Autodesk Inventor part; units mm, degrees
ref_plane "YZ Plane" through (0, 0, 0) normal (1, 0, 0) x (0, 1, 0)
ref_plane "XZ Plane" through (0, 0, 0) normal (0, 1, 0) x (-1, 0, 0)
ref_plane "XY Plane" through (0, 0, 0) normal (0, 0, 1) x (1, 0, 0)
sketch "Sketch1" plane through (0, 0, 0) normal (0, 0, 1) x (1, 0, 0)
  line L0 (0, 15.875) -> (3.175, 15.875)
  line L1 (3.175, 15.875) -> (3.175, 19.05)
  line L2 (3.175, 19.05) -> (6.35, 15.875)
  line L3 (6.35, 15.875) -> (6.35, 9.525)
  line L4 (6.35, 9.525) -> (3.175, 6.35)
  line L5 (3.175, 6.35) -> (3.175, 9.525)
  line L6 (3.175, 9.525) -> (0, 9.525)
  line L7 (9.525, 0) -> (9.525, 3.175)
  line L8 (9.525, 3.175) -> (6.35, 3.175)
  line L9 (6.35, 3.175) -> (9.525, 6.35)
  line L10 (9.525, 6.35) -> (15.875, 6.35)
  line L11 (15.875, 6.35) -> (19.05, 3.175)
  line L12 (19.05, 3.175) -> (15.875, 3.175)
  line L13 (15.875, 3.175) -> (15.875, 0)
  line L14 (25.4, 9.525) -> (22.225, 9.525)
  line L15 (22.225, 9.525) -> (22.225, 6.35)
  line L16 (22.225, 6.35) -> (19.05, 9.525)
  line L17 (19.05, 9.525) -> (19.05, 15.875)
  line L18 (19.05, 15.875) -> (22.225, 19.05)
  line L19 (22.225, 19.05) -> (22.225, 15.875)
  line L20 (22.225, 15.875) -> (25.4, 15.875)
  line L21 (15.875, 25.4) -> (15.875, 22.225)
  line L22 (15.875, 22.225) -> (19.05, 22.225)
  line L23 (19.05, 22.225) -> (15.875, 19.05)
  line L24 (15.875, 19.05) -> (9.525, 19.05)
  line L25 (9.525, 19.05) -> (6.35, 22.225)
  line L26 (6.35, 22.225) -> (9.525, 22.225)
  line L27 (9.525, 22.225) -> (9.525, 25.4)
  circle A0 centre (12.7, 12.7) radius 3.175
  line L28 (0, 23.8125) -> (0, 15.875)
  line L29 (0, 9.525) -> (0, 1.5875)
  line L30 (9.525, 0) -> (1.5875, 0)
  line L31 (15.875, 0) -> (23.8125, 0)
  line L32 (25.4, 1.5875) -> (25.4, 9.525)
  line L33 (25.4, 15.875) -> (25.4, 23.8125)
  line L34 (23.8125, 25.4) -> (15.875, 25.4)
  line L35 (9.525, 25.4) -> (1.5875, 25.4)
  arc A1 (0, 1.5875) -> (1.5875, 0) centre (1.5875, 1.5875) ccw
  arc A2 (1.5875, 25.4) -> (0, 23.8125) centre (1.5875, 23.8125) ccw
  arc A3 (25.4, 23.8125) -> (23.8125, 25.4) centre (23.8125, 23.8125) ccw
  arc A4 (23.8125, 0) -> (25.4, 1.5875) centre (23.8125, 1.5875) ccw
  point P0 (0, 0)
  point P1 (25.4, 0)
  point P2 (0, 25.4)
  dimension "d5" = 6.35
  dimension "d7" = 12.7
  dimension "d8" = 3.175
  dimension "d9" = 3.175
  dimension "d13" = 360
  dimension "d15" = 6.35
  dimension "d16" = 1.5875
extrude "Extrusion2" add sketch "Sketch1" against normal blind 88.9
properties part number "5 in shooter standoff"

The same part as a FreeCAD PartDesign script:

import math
import FreeCAD as App
import Part
import Sketcher
from FreeCAD import Vector
Q = App.Units.Quantity

doc = App.newDocument("Part")
body = doc.addObject("PartDesign::Body", "Body")

sketch1 = body.newObject("Sketcher::SketchObject", "Sketch")
sketch1.AttachmentSupport = (doc.getObject("XY_Plane"), [""])
sketch1.MapMode = "FlatFace"
sketch1.addGeometry([
    Part.LineSegment(Vector(0, 23.8, 0), Vector(0, 15.9, 0)),
    Part.LineSegment(Vector(0, 15.9, 0), Vector(3.2, 15.9, 0)),
    Part.LineSegment(Vector(3.2, 15.9, 0), Vector(3.2, 19.1, 0)),
    Part.LineSegment(Vector(3.2, 19.1, 0), Vector(6.3, 15.9, 0)),
    Part.LineSegment(Vector(6.3, 15.9, 0), Vector(6.3, 9.5, 0)),
    Part.LineSegment(Vector(6.3, 9.5, 0), Vector(3.2, 6.3, 0)),
    Part.LineSegment(Vector(3.2, 6.3, 0), Vector(3.2, 9.5, 0)),
    Part.LineSegment(Vector(3.2, 9.5, 0), Vector(0, 9.5, 0)),
    Part.LineSegment(Vector(0, 9.5, 0), Vector(0, 1.6, 0)),
    Part.ArcOfCircle(Part.Circle(Vector(1.6, 1.6, 0), Vector(0, 0, 1), 1.6), math.radians(180), math.radians(270)),
    Part.LineSegment(Vector(1.6, 0, 0), Vector(9.5, 0, 0)),
    Part.LineSegment(Vector(9.5, 0, 0), Vector(9.5, 3.2, 0)),
    Part.LineSegment(Vector(9.5, 3.2, 0), Vector(6.3, 3.2, 0)),
    Part.LineSegment(Vector(6.3, 3.2, 0), Vector(9.5, 6.3, 0)),
    Part.LineSegment(Vector(9.5, 6.3, 0), Vector(15.9, 6.3, 0)),
    Part.LineSegment(Vector(15.9, 6.3, 0), Vector(19.1, 3.2, 0)),
    Part.LineSegment(Vector(19.1, 3.2, 0), Vector(15.9, 3.2, 0)),
    Part.LineSegment(Vector(15.9, 3.2, 0), Vector(15.9, 0, 0)),
    Part.LineSegment(Vector(15.9, 0, 0), Vector(23.8, 0, 0)),
    Part.ArcOfCircle(Part.Circle(Vector(23.8, 1.6, 0), Vector(0, 0, 1), 1.6), math.radians(-90), math.radians(0)),
    Part.LineSegment(Vector(25.4, 1.6, 0), Vector(25.4, 9.5, 0)),
    Part.LineSegment(Vector(25.4, 9.5, 0), Vector(22.2, 9.5, 0)),
    Part.LineSegment(Vector(22.2, 9.5, 0), Vector(22.2, 6.3, 0)),
    Part.LineSegment(Vector(22.2, 6.3, 0), Vector(19.1, 9.5, 0)),
    Part.LineSegment(Vector(19.1, 9.5, 0), Vector(19.1, 15.9, 0)),
    Part.LineSegment(Vector(19.1, 15.9, 0), Vector(22.2, 19.1, 0)),
    Part.LineSegment(Vector(22.2, 19.1, 0), Vector(22.2, 15.9, 0)),
    Part.LineSegment(Vector(22.2, 15.9, 0), Vector(25.4, 15.9, 0)),
    Part.LineSegment(Vector(25.4, 15.9, 0), Vector(25.4, 23.8, 0)),
    Part.ArcOfCircle(Part.Circle(Vector(23.8, 23.8, 0), Vector(0, 0, 1), 1.6), math.radians(0), math.radians(90)),
    Part.LineSegment(Vector(23.8, 25.4, 0), Vector(15.9, 25.4, 0)),
    Part.LineSegment(Vector(15.9, 25.4, 0), Vector(15.9, 22.2, 0)),
    Part.LineSegment(Vector(15.9, 22.2, 0), Vector(19.1, 22.2, 0)),
    Part.LineSegment(Vector(19.1, 22.2, 0), Vector(15.9, 19.1, 0)),
    Part.LineSegment(Vector(15.9, 19.1, 0), Vector(9.5, 19.1, 0)),
    Part.LineSegment(Vector(9.5, 19.1, 0), Vector(6.3, 22.2, 0)),
    Part.LineSegment(Vector(6.3, 22.2, 0), Vector(9.5, 22.2, 0)),
    Part.LineSegment(Vector(9.5, 22.2, 0), Vector(9.5, 25.4, 0)),
    Part.LineSegment(Vector(9.5, 25.4, 0), Vector(1.6, 25.4, 0)),
    Part.ArcOfCircle(Part.Circle(Vector(1.6, 23.8, 0), Vector(0, 0, 1), 1.6), math.radians(90), math.radians(180)),
    Part.Circle(Vector(12.7, 12.7, 0), Vector(0, 0, 1), 3.2),
], False)
sketch1.addConstraint([
    Sketcher.Constraint("Coincident", 0, 2, 1, 1),
    Sketcher.Constraint("Coincident", 1, 2, 2, 1),
    Sketcher.Constraint("Coincident", 2, 2, 3, 1),
    Sketcher.Constraint("Coincident", 3, 2, 4, 1),
    Sketcher.Constraint("Coincident", 4, 2, 5, 1),
    Sketcher.Constraint("Coincident", 5, 2, 6, 1),
    Sketcher.Constraint("Coincident", 6, 2, 7, 1),
    Sketcher.Constraint("Coincident", 7, 2, 8, 1),
    Sketcher.Constraint("Tangent", 8, 2, 9, 1),
    Sketcher.Constraint("Tangent", 9, 2, 10, 1),
    Sketcher.Constraint("Coincident", 10, 2, 11, 1),
    Sketcher.Constraint("Coincident", 11, 2, 12, 1),
    Sketcher.Constraint("Coincident", 12, 2, 13, 1),
    Sketcher.Constraint("Coincident", 13, 2, 14, 1),
    Sketcher.Constraint("Coincident", 14, 2, 15, 1),
    Sketcher.Constraint("Coincident", 15, 2, 16, 1),
    Sketcher.Constraint("Coincident", 16, 2, 17, 1),
    Sketcher.Constraint("Coincident", 17, 2, 18, 1),
    Sketcher.Constraint("Tangent", 18, 2, 19, 1),
    Sketcher.Constraint("Tangent", 19, 2, 20, 1),
    Sketcher.Constraint("Coincident", 20, 2, 21, 1),
    Sketcher.Constraint("Coincident", 21, 2, 22, 1),
    Sketcher.Constraint("Coincident", 22, 2, 23, 1),
    Sketcher.Constraint("Coincident", 23, 2, 24, 1),
    Sketcher.Constraint("Coincident", 24, 2, 25, 1),
    Sketcher.Constraint("Coincident", 25, 2, 26, 1),
    Sketcher.Constraint("Coincident", 26, 2, 27, 1),
    Sketcher.Constraint("Coincident", 27, 2, 28, 1),
    Sketcher.Constraint("Tangent", 28, 2, 29, 1),
    Sketcher.Constraint("Tangent", 29, 2, 30, 1),
    Sketcher.Constraint("Coincident", 30, 2, 31, 1),
    Sketcher.Constraint("Coincident", 31, 2, 32, 1),
    Sketcher.Constraint("Coincident", 32, 2, 33, 1),
    Sketcher.Constraint("Coincident", 33, 2, 34, 1),
    Sketcher.Constraint("Coincident", 34, 2, 35, 1),
    Sketcher.Constraint("Coincident", 35, 2, 36, 1),
    Sketcher.Constraint("Coincident", 36, 2, 37, 1),
    Sketcher.Constraint("Coincident", 37, 2, 38, 1),
    Sketcher.Constraint("Tangent", 38, 2, 39, 1),
    Sketcher.Constraint("Tangent", 39, 2, 0, 1),
    Sketcher.Constraint("Vertical", 0),
    Sketcher.Constraint("Horizontal", 1),
    Sketcher.Constraint("Vertical", 2),
    Sketcher.Constraint("Vertical", 4),
    Sketcher.Constraint("Vertical", 6),
    Sketcher.Constraint("Horizontal", 7),
    Sketcher.Constraint("Vertical", 8),
    Sketcher.Constraint("Horizontal", 10),
    Sketcher.Constraint("Vertical", 11),
    Sketcher.Constraint("Horizontal", 12),
    Sketcher.Constraint("Horizontal", 14),
    Sketcher.Constraint("Horizontal", 16),
    Sketcher.Constraint("Vertical", 17),
    Sketcher.Constraint("Horizontal", 18),
    Sketcher.Constraint("Vertical", 20),
    Sketcher.Constraint("Horizontal", 21),
    Sketcher.Constraint("Vertical", 22),
    Sketcher.Constraint("Vertical", 24),
    Sketcher.Constraint("Vertical", 26),
    Sketcher.Constraint("Horizontal", 27),
    Sketcher.Constraint("Vertical", 28),
    Sketcher.Constraint("Horizontal", 30),
    Sketcher.Constraint("Vertical", 31),
    Sketcher.Constraint("Horizontal", 32),
    Sketcher.Constraint("Horizontal", 34),
    Sketcher.Constraint("Horizontal", 36),
    Sketcher.Constraint("Vertical", 37),
    Sketcher.Constraint("Horizontal", 38),
    Sketcher.Constraint("Equal", 9, 19),
    Sketcher.Constraint("Equal", 19, 29),
    Sketcher.Constraint("Equal", 29, 39),
    Sketcher.Constraint("PointOnObject", 0, 2, -2),
    Sketcher.Constraint("PointOnObject", 7, 2, -2),
    Sketcher.Constraint("PointOnObject", 9, 2, -1),
    Sketcher.Constraint("PointOnObject", 17, 2, -1),
    Sketcher.Constraint("Perpendicular", 3, 5),
    Sketcher.Constraint("Parallel", 5, 13),
    Sketcher.Constraint("Perpendicular", 13, 15),
    Sketcher.Constraint("Parallel", 15, 23),
    Sketcher.Constraint("Perpendicular", 23, 25),
    Sketcher.Constraint("Parallel", 25, 33),
    Sketcher.Constraint("Perpendicular", 33, 35),
    Sketcher.Constraint("Horizontal", 29, 3, 39, 3),
    Sketcher.Constraint("Horizontal", 1, 2, 3, 2),
    Sketcher.Constraint("Horizontal", 4, 2, 6, 2),
    Sketcher.Constraint("Horizontal", 5, 2, 13, 2),
    Sketcher.Constraint("Horizontal", 12, 2, 15, 2),
    Sketcher.Constraint("Horizontal", 7, 2, 20, 2),
    Sketcher.Constraint("Horizontal", 14, 2, 22, 2),
    Sketcher.Constraint("Horizontal", 21, 2, 23, 2),
    Sketcher.Constraint("Horizontal", 3, 2, 24, 2),
    Sketcher.Constraint("Horizontal", 2, 2, 25, 2),
    Sketcher.Constraint("Horizontal", 24, 2, 26, 2),
    Sketcher.Constraint("Horizontal", 25, 2, 33, 2),
    Sketcher.Constraint("Horizontal", 32, 2, 35, 2),
    Sketcher.Constraint("Vertical", 19, 3, 29, 3),
    Sketcher.Constraint("Vertical", 2, 2, 5, 2),
    Sketcher.Constraint("Vertical", 4, 2, 12, 2),
    Sketcher.Constraint("Vertical", 11, 2, 13, 2),
    Sketcher.Constraint("Vertical", 14, 2, 16, 2),
    Sketcher.Constraint("Vertical", 15, 2, 23, 2),
    Sketcher.Constraint("Vertical", 22, 2, 25, 2),
    Sketcher.Constraint("Vertical", 17, 2, 30, 2),
    Sketcher.Constraint("Vertical", 24, 2, 32, 2),
    Sketcher.Constraint("Vertical", 31, 2, 33, 2),
    Sketcher.Constraint("Vertical", 13, 2, 34, 2),
    Sketcher.Constraint("Vertical", 34, 2, 36, 2),
    Sketcher.Constraint("Equal", 7, 12),
    Sketcher.Constraint("Equal", 10, 18),
    Sketcher.Constraint("Equal", 38, 0),
    Sketcher.Constraint("Equal", 36, 2),
    Sketcher.Constraint("Equal", 34, 4),
    Sketcher.Constraint("Equal", 0, 8),
    Sketcher.Constraint("Diameter", 40, Q("0.25 in")),
    Sketcher.Constraint("Radius", 9, Q("0.0625 in")),
    Sketcher.Constraint("DistanceX", 14, 1, 14, 2, Q("0.25 in")),
    Sketcher.Constraint("DistanceX", -1, 1, 40, 3, Q("0.5 in")),
    Sketcher.Constraint("DistanceY", -1, 1, 40, 3, Q("0.5 in")),
    Sketcher.Constraint("DistanceX", 1, 1, 1, 2, Q("0.125 in")),
])
pad1 = body.newObject("PartDesign::Pad", "Pad")
pad1.Profile = sketch1
pad1.Length = Q("3.5 in")
pad1.Reversed = True

doc.recompute()
